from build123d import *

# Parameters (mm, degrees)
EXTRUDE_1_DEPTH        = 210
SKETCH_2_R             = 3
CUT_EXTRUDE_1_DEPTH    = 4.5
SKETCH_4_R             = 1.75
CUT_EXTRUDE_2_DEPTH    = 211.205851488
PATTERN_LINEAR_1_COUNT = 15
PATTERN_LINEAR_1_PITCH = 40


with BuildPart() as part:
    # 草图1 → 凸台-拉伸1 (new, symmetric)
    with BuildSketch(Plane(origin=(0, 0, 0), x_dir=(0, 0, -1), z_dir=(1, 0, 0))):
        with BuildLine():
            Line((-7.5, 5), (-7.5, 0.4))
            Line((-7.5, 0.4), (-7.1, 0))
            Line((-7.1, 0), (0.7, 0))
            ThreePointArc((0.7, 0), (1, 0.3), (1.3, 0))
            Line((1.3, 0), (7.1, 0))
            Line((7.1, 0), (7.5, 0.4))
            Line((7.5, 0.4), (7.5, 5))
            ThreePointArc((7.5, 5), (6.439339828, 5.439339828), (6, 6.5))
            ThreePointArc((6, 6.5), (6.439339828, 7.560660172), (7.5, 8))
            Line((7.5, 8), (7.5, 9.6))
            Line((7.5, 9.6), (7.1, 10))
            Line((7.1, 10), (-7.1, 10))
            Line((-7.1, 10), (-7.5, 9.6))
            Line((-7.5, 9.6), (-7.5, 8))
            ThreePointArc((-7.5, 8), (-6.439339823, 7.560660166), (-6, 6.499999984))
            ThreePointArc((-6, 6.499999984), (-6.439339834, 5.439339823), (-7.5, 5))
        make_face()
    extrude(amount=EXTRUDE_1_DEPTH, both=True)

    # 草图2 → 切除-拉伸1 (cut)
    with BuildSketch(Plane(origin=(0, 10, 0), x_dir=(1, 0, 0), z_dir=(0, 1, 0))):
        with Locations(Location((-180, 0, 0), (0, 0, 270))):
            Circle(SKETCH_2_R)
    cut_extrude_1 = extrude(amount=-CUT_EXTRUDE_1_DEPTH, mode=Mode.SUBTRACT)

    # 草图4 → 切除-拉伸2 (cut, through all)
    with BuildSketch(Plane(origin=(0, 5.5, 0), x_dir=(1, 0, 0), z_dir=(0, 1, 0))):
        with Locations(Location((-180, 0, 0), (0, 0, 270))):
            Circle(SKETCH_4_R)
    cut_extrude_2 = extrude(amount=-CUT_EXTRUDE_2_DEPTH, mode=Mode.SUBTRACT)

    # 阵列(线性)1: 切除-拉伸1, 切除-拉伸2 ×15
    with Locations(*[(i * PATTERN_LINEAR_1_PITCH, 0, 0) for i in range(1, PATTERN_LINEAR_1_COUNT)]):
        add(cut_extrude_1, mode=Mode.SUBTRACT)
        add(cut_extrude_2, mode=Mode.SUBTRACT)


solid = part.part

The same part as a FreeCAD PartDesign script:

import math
import FreeCAD as App
import Part
import Sketcher
from FreeCAD import Vector
Q = App.Units.Quantity

doc = App.newDocument("Part")
params = doc.addObject("Spreadsheet::Sheet", "Params")
for row, (alias, value) in enumerate([
    ("sketch1_radius", "0.3 mm"),
    ("sketch1_radius2", "1.5 mm"),
    ("sketch1_width", "4.6 mm"),
    ("sketch1_width2", "1.6 mm"),
    ("sketch1_height", "7.8 mm"),
    ("pad1_length", "420 mm"),
    ("sketch2_diameter", "6 mm"),
    ("pocket1_length", "4.5 mm"),
    ("sketch3_diameter", "3.5 mm"),
    ("linearpattern_pitch", "40 mm"),
], start=1):
    params.set(f"A{row}", alias)
    params.set(f"B{row}", "=" + value)
    params.setAlias(f"B{row}", alias)

body = doc.addObject("PartDesign::Body", "Body")

# Sketch on YZ plane
sketch1 = body.newObject("Sketcher::SketchObject", "Sketch")
sketch1.AttachmentSupport = (doc.getObject("YZ_Plane"), [""])
sketch1.MapMode = "FlatFace"
sketch1.addGeometry([
    Part.LineSegment(Vector(5, 7.5, 0), Vector(0.4, 7.5, 0)),  # 0
    Part.LineSegment(Vector(0.4, 7.5, 0), Vector(0, 7.1, 0)),  # 1
    Part.LineSegment(Vector(0, 7.1, 0), Vector(0, -0.7, 0)),  # 2
    Part.ArcOfCircle(Part.Circle(Vector(0, -1, 0), Vector(0, 0, 1), 0.3), math.radians(-90), math.radians(90)),  # 3
    Part.LineSegment(Vector(0, -1.3, 0), Vector(0, -7.1, 0)),  # 4
    Part.LineSegment(Vector(0, -7.1, 0), Vector(0.4, -7.5, 0)),  # 5
    Part.LineSegment(Vector(0.4, -7.5, 0), Vector(5, -7.5, 0)),  # 6
    Part.ArcOfCircle(Part.Circle(Vector(6.5, -7.5, 0), Vector(0, 0, 1), 1.5), math.radians(90), math.radians(180)),  # 7
    Part.ArcOfCircle(Part.Circle(Vector(6.5, -7.5, 0), Vector(0, 0, 1), 1.5), math.radians(0), math.radians(90)),  # 8
    Part.LineSegment(Vector(8, -7.5, 0), Vector(9.6, -7.5, 0)),  # 9
    Part.LineSegment(Vector(9.6, -7.5, 0), Vector(10, -7.1, 0)),  # 10
    Part.LineSegment(Vector(10, -7.1, 0), Vector(10, 7.1, 0)),  # 11
    Part.LineSegment(Vector(10, 7.1, 0), Vector(9.6, 7.5, 0)),  # 12
    Part.LineSegment(Vector(9.6, 7.5, 0), Vector(8, 7.5, 0)),  # 13
    Part.ArcOfCircle(Part.Circle(Vector(6.5, 7.5, 0), Vector(0, 0, 1), 1.5), math.radians(-90), math.radians(0)),  # 14
    Part.ArcOfCircle(Part.Circle(Vector(6.5, 7.5, 0), Vector(0, 0, 1), 1.5), math.radians(-180), math.radians(-90)),  # 15
], False)
sketch1.addConstraint([
    Sketcher.Constraint("Coincident", 0, 2, 1, 1),
    Sketcher.Constraint("Coincident", 1, 2, 2, 1),
    Sketcher.Constraint("Coincident", 2, 2, 3, 2),
    Sketcher.Constraint("Coincident", 3, 1, 4, 1),
    Sketcher.Constraint("Coincident", 4, 2, 5, 1),
    Sketcher.Constraint("Coincident", 5, 2, 6, 1),
    Sketcher.Constraint("Coincident", 6, 2, 7, 2),
    Sketcher.Constraint("Tangent", 7, 1, 8, 2),
    Sketcher.Constraint("Coincident", 8, 1, 9, 1),
    Sketcher.Constraint("Coincident", 9, 2, 10, 1),
    Sketcher.Constraint("Coincident", 10, 2, 11, 1),
    Sketcher.Constraint("Coincident", 11, 2, 12, 1),
    Sketcher.Constraint("Coincident", 12, 2, 13, 1),
    Sketcher.Constraint("Coincident", 13, 2, 14, 2),
    Sketcher.Constraint("Tangent", 14, 1, 15, 2),
    Sketcher.Constraint("Coincident", 15, 1, 0, 1),
    Sketcher.Constraint("Horizontal", 0),
    Sketcher.Constraint("Vertical", 2),
    Sketcher.Constraint("Vertical", 4),
    Sketcher.Constraint("Horizontal", 6),
    Sketcher.Constraint("Horizontal", 9),
    Sketcher.Constraint("Vertical", 11),
    Sketcher.Constraint("Horizontal", 13),
    Sketcher.Constraint("Equal", 7, 8),
    Sketcher.Constraint("Equal", 8, 14),
    Sketcher.Constraint("Equal", 14, 15),
    Sketcher.Constraint("Symmetric", 1, 2, 4, 2, -1, 1),
    Sketcher.Constraint("Symmetric", 7, 3, 14, 3, -1),
    Sketcher.Constraint("Symmetric", 0, 2, 5, 2, -1),
    Sketcher.Constraint("Symmetric", 9, 2, 12, 2, -1),
    Sketcher.Constraint("PointOnObject", 3, 3, -2),
    Sketcher.Constraint("PointOnObject", 1, 2, -2),
    Sketcher.Constraint("Perpendicular", 1, 5),
    Sketcher.Constraint("Perpendicular", 5, 10),
    Sketcher.Constraint("Perpendicular", 10, 12),
    Sketcher.Constraint("Horizontal", 15, 3, 0, 2),
    Sketcher.Constraint("Horizontal", 6, 2, 8, 1),
    Sketcher.Constraint("Horizontal", 4, 2, 10, 2),
    Sketcher.Constraint("Vertical", 15, 3, 7, 1),
    Sketcher.Constraint("Vertical", 7, 1, 14, 1),
    Sketcher.Constraint("Radius", 3, Q("0.3 mm")),
    Sketcher.Constraint("Radius", 7, Q("1.5 mm")),
    Sketcher.Constraint("DistanceX", 0, 2, 0, 1, Q("4.6 mm")),
    Sketcher.Constraint("DistanceX", 9, 1, 9, 2, Q("1.6 mm")),
    Sketcher.Constraint("DistanceY", 2, 2, 2, 1, Q("7.8 mm")),
    Sketcher.Constraint("DistanceY", 4, 2, 4, 1, Q("5.8 mm")),
    Sketcher.Constraint("DistanceX", -1, 1, 6, 2, Q("5 mm")),
])
sketch1.setExpression("Constraints[40]", "Params.sketch1_radius")
sketch1.setExpression("Constraints[41]", "Params.sketch1_radius2")
sketch1.setExpression("Constraints[42]", "Params.sketch1_width")
sketch1.setExpression("Constraints[43]", "Params.sketch1_width2")
sketch1.setExpression("Constraints[44]", "Params.sketch1_height")
pad1 = body.newObject("PartDesign::Pad", "Pad")
pad1.Profile = sketch1
pad1.setExpression("Length", "Params.pad1_length")
pad1.Midplane = True

# Sketch on XZ plane
sketch2 = body.newObject("Sketcher::SketchObject", "Sketch001")
sketch2.AttachmentSupport = (doc.getObject("XZ_Plane"), [""])
sketch2.MapMode = "FlatFace"
sketch2.AttachmentOffset = App.Placement(Vector(0, 0, -10), App.Rotation())
sketch2.addGeometry(Part.Circle(Vector(-180, 0, 0), Vector(0, 0, 1), 3), False)
sketch2.addConstraint([
    Sketcher.Constraint("PointOnObject", 0, 3, -1),
    Sketcher.Constraint("Diameter", 0, Q("6 mm")),
    Sketcher.Constraint("DistanceX", 0, 3, -1, 1, Q("180 mm")),
])
sketch2.setExpression("Constraints[1]", "Params.sketch2_diameter")
pocket1 = body.newObject("PartDesign::Pocket", "Pocket")
pocket1.Profile = sketch2
pocket1.setExpression("Length", "Params.pocket1_length")
pocket1.Reversed = True

# Sketch on XZ plane
sketch3 = body.newObject("Sketcher::SketchObject", "Sketch002")
sketch3.AttachmentSupport = (doc.getObject("XZ_Plane"), [""])
sketch3.MapMode = "FlatFace"
sketch3.AttachmentOffset = App.Placement(Vector(0, 0, -5.5), App.Rotation())
sketch3.addGeometry(Part.Circle(Vector(-180, 0, 0), Vector(0, 0, 1), 1.8), False)
sketch3.addConstraint([
    Sketcher.Constraint("PointOnObject", 0, 3, -1),
    Sketcher.Constraint("Diameter", 0, Q("3.5 mm")),
    Sketcher.Constraint("DistanceX", 0, 3, -1, 1, Q("180 mm")),
])
sketch3.setExpression("Constraints[1]", "Params.sketch3_diameter")
pocket2 = body.newObject("PartDesign::Pocket", "Pocket001")
pocket2.Profile = sketch3
pocket2.Type = "ThroughAll"
pocket2.Reversed = True
doc.recompute()

linearpattern = body.newObject("PartDesign::LinearPattern", "LinearPattern")
linearpattern.Originals = [pocket1, pocket2]
linearpattern.Direction = (doc.getObject("X_Axis"), [""])
linearpattern.Mode = "offset"
linearpattern.setExpression("Offset", "Params.linearpattern_pitch")
linearpattern.Occurrences = 15
body.Tip = linearpattern

doc.recompute()
